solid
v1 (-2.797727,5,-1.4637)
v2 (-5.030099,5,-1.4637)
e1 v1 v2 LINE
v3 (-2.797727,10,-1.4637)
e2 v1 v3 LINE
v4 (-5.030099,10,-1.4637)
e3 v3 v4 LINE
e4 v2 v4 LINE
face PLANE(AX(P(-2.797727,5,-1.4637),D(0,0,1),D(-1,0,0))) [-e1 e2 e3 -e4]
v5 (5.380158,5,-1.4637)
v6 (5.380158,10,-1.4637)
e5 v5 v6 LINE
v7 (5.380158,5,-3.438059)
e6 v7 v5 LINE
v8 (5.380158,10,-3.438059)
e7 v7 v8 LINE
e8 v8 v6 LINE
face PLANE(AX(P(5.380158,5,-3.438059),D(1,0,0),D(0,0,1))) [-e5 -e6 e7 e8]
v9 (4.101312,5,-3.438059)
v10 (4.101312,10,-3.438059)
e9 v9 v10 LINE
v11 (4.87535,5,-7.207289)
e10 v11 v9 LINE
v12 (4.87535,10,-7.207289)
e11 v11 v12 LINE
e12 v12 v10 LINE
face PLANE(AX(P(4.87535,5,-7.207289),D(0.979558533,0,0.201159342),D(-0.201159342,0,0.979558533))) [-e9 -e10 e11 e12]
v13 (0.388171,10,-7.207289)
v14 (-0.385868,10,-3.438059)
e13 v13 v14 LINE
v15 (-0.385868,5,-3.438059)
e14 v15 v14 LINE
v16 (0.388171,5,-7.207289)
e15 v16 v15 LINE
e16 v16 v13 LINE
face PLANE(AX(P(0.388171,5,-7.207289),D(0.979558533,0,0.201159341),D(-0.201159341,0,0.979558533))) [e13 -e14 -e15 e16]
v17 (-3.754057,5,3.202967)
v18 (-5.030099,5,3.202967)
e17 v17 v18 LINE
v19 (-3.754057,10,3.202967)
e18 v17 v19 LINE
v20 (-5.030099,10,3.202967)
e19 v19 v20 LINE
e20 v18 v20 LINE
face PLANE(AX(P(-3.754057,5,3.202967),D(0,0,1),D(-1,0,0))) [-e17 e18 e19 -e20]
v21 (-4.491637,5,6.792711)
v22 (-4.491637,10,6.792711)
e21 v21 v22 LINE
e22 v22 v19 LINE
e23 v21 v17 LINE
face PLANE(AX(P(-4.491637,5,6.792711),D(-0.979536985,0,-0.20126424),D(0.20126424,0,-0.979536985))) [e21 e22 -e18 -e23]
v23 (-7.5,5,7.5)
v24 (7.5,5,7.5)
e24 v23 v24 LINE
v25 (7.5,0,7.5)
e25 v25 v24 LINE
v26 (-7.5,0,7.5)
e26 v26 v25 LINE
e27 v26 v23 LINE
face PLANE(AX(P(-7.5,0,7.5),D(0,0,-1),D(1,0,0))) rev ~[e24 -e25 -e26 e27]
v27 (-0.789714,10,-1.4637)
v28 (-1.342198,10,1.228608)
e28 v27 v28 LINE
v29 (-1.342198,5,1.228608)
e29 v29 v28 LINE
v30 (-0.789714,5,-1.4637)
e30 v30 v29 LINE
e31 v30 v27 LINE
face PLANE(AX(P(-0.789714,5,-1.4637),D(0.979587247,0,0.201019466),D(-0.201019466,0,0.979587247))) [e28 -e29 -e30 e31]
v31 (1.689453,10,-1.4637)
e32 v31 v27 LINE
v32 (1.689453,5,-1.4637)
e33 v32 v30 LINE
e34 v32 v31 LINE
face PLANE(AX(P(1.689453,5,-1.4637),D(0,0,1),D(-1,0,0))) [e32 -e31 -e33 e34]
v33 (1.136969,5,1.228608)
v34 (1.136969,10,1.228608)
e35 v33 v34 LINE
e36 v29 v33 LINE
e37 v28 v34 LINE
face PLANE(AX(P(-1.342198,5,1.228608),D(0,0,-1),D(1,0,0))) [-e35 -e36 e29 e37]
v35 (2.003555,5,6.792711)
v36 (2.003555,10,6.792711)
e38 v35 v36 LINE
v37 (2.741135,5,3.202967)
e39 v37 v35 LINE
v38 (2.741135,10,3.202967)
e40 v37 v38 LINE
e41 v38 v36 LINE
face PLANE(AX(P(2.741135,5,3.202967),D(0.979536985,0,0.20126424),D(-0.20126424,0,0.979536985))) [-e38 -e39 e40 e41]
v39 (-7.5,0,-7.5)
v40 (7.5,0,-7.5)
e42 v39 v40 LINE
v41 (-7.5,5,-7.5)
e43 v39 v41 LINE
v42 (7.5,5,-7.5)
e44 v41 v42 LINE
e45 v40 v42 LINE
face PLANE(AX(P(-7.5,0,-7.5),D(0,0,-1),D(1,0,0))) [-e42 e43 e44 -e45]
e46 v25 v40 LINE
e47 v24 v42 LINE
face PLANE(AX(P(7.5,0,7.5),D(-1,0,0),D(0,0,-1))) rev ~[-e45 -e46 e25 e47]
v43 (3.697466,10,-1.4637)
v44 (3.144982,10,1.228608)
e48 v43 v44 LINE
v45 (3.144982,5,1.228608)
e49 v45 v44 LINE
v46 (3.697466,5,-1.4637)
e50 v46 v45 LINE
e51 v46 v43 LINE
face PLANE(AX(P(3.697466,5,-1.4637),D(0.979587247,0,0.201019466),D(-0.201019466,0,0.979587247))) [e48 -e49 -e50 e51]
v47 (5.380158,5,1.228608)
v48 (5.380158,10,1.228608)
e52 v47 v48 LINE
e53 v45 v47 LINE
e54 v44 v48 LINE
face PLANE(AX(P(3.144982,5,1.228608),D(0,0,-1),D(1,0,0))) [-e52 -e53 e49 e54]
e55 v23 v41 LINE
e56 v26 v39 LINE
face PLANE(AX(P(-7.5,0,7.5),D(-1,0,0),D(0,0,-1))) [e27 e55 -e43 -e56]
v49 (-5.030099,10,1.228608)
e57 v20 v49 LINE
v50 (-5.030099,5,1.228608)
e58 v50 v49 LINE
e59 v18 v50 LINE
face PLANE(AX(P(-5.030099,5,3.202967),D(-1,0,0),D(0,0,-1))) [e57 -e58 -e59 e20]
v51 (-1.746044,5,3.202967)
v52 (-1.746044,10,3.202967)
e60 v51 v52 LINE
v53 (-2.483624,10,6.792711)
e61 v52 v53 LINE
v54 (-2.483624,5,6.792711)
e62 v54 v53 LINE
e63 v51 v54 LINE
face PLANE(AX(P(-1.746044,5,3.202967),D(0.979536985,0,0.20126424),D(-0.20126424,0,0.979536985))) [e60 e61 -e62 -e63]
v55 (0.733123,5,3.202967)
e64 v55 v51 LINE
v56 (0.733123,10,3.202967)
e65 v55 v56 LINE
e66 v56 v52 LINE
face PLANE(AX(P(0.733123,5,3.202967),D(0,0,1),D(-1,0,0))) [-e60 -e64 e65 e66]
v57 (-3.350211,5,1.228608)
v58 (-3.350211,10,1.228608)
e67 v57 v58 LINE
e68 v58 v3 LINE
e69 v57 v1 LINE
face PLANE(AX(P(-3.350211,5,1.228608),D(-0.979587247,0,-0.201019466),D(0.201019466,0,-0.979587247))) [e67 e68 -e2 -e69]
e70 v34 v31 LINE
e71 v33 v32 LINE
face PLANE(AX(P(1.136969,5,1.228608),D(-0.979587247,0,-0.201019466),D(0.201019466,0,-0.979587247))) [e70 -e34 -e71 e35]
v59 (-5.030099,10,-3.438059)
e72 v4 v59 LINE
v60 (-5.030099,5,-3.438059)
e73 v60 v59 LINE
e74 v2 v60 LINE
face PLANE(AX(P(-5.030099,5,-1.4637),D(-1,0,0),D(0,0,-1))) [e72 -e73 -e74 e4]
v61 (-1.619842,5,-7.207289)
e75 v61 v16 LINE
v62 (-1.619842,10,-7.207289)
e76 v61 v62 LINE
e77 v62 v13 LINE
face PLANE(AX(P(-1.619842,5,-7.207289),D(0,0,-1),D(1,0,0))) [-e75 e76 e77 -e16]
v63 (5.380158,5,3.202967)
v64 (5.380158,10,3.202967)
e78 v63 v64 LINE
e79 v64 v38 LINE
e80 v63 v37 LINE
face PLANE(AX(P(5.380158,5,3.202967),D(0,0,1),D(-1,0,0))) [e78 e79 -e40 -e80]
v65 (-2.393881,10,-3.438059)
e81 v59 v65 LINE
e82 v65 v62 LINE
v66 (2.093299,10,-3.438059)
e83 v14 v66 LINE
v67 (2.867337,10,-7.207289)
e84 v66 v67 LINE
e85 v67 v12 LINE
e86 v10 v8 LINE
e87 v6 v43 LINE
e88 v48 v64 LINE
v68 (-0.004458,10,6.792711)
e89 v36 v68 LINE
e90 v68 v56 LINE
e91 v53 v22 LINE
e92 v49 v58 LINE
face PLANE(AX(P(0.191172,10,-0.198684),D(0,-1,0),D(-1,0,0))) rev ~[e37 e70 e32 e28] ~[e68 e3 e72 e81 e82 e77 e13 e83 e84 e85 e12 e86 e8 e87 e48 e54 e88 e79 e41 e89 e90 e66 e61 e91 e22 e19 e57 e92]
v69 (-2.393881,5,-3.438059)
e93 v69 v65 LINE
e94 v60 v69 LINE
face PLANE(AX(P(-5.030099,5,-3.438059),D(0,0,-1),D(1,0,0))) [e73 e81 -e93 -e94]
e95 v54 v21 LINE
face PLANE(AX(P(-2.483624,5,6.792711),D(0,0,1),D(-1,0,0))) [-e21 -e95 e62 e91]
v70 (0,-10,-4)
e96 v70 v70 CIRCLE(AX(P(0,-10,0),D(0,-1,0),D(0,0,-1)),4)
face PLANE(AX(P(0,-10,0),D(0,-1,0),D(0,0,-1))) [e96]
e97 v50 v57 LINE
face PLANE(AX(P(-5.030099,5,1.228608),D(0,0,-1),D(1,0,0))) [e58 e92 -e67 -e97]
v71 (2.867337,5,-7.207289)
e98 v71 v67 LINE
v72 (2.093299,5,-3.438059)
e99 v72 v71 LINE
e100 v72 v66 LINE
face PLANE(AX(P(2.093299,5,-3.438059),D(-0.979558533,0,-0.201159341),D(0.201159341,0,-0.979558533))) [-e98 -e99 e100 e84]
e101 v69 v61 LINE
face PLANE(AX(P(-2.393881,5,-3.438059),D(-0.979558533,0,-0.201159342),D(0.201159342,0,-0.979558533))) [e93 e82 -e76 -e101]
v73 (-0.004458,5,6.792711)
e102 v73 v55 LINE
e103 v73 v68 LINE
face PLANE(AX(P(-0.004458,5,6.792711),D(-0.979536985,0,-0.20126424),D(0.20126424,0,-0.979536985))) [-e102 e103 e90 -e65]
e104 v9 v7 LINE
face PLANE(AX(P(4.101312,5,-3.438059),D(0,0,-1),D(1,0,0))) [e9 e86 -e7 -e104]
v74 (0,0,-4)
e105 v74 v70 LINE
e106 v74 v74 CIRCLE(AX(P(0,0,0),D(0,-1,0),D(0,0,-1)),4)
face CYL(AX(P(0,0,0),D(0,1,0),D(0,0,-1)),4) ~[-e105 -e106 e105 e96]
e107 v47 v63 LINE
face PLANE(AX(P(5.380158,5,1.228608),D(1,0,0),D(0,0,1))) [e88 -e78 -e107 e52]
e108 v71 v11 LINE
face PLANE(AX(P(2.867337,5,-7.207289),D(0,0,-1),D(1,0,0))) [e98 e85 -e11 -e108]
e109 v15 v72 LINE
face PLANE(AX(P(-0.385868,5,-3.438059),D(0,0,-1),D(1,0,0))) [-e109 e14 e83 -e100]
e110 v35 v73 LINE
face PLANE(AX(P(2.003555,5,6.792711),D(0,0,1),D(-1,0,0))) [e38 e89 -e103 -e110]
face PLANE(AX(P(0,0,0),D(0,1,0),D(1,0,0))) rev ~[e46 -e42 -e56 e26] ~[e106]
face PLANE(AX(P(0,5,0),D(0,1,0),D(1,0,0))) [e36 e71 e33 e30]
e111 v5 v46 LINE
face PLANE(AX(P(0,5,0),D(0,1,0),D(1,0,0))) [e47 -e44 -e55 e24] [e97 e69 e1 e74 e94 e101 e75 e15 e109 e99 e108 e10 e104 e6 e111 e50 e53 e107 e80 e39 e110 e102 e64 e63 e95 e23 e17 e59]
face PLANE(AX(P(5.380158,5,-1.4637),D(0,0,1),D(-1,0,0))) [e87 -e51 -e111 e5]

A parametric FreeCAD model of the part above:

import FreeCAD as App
import Part
import Sketcher
Q = App.Units.Quantity

doc = App.newDocument("Part")
body = doc.addObject("PartDesign::Body", "Body")

sketch1 = body.newObject("Sketcher::SketchObject", "Sketch")
sketch1.AttachmentSupport = (doc.getObject("XZ_Plane"), [""])
sketch1.MapMode = "FlatFace"
sketch1.addGeometry([
    Part.LineSegment(App.Vector(-8, -8, 0), App.Vector(-8, 8, 0)),
    Part.LineSegment(App.Vector(-8, 8, 0), App.Vector(8, 8, 0)),
    Part.LineSegment(App.Vector(8, 8, 0), App.Vector(8, -8, 0)),
    Part.LineSegment(App.Vector(8, -8, 0), App.Vector(-8, -8, 0)),
], False)
sketch1.addConstraint([
    Sketcher.Constraint("Coincident", 0, 2, 1, 1),
    Sketcher.Constraint("Coincident", 1, 2, 2, 1),
    Sketcher.Constraint("Coincident", 2, 2, 3, 1),
    Sketcher.Constraint("Coincident", 3, 2, 0, 1),
    Sketcher.Constraint("Vertical", 0),
    Sketcher.Constraint("Horizontal", 1),
    Sketcher.Constraint("Vertical", 2),
    Sketcher.Constraint("Horizontal", 3),
    Sketcher.Constraint("Symmetric", 0, 2, 2, 2, -1, 1),
    Sketcher.Constraint("Equal", 3, 0),
    Sketcher.Constraint("DistanceX", 1, 1, 1, 2, Q("15 mm")),
])
pad1 = body.newObject("PartDesign::Pad", "Pad")
pad1.Profile = sketch1
pad1.Length = 5
pad1.Reversed = True

sketch2 = body.newObject("Sketcher::SketchObject", "Sketch001")
sketch2.AttachmentSupport = (doc.getObject("XZ_Plane"), [""])
sketch2.MapMode = "FlatFace"
sketch2.AttachmentOffset = App.Placement(App.Vector(0, 0, -5), App.Rotation())
sketch2.addGeometry([
    Part.LineSegment(App.Vector(-5, 3.2, 0), App.Vector(-3.8, 3.2, 0)),
    Part.LineSegment(App.Vector(-3.8, 3.2, 0), App.Vector(-4.5, 6.8, 0)),
    Part.LineSegment(App.Vector(-4.5, 6.8, 0), App.Vector(-2.5, 6.8, 0)),
    Part.LineSegment(App.Vector(-2.5, 6.8, 0), App.Vector(-1.7, 3.2, 0)),
    Part.LineSegment(App.Vector(-1.7, 3.2, 0), App.Vector(0.7, 3.2, 0)),
    Part.LineSegment(App.Vector(0.7, 3.2, 0), App.Vector(0, 6.8, 0)),
    Part.LineSegment(App.Vector(0, 6.8, 0), App.Vector(2, 6.8, 0)),
    Part.LineSegment(App.Vector(2, 6.8, 0), App.Vector(2.7, 3.2, 0)),
    Part.LineSegment(App.Vector(2.7, 3.2, 0), App.Vector(5.4, 3.2, 0)),
    Part.LineSegment(App.Vector(5.4, 3.2, 0), App.Vector(5.4, 1.2, 0)),
    Part.LineSegment(App.Vector(5.4, 1.2, 0), App.Vector(3.1, 1.2, 0)),
    Part.LineSegment(App.Vector(3.1, 1.2, 0), App.Vector(3.7, -1.5, 0)),
    Part.LineSegment(App.Vector(3.7, -1.5, 0), App.Vector(5.4, -1.5, 0)),
    Part.LineSegment(App.Vector(5.4, -1.5, 0), App.Vector(5.4, -3.4, 0)),
    Part.LineSegment(App.Vector(5.4, -3.4, 0), App.Vector(4.1, -3.4, 0)),
    Part.LineSegment(App.Vector(4.1, -3.4, 0), App.Vector(4.9, -7.2, 0)),
    Part.LineSegment(App.Vector(4.9, -7.2, 0), App.Vector(2.9, -7.2, 0)),
    Part.LineSegment(App.Vector(2.9, -7.2, 0), App.Vector(2.1, -3.4, 0)),
    Part.LineSegment(App.Vector(2.1, -3.4, 0), App.Vector(-0.4, -3.4, 0)),
    Part.LineSegment(App.Vector(-0.4, -3.4, 0), App.Vector(0.4, -7.2, 0)),
    Part.LineSegment(App.Vector(0.4, -7.2, 0), App.Vector(-1.6, -7.2, 0)),
    Part.LineSegment(App.Vector(-1.6, -7.2, 0), App.Vector(-2.4, -3.4, 0)),
    Part.LineSegment(App.Vector(-2.4, -3.4, 0), App.Vector(-5, -3.4, 0)),
    Part.LineSegment(App.Vector(-5, -3.4, 0), App.Vector(-5, -1.5, 0)),
    Part.LineSegment(App.Vector(-5, -1.5, 0), App.Vector(-2.8, -1.5, 0)),
    Part.LineSegment(App.Vector(-2.8, -1.5, 0), App.Vector(-3.4, 1.2, 0)),
    Part.LineSegment(App.Vector(-3.4, 1.2, 0), App.Vector(-5, 1.2, 0)),
    Part.LineSegment(App.Vector(-5, 1.2, 0), App.Vector(-5, 3.2, 0)),
    Part.LineSegment(App.Vector(-0.8, -1.5, 0), App.Vector(1.7, -1.5, 0)),
    Part.LineSegment(App.Vector(1.7, -1.5, 0), App.Vector(1.1, 1.2, 0)),
    Part.LineSegment(App.Vector(1.1, 1.2, 0), App.Vector(-1.3, 1.2, 0)),
    Part.LineSegment(App.Vector(-1.3, 1.2, 0), App.Vector(-0.8, -1.5, 0)),
], False)
sketch2.addConstraint([
    Sketcher.Constraint("Coincident", 0, 2, 1, 1),
    Sketcher.Constraint("Coincident", 1, 2, 2, 1),
    Sketcher.Constraint("Coincident", 2, 2, 3, 1),
    Sketcher.Constraint("Coincident", 3, 2, 4, 1),
    Sketcher.Constraint("Coincident", 4, 2, 5, 1),
    Sketcher.Constraint("Coincident", 5, 2, 6, 1),
    Sketcher.Constraint("Coincident", 6, 2, 7, 1),
    Sketcher.Constraint("Coincident", 7, 2, 8, 1),
    Sketcher.Constraint("Coincident", 8, 2, 9, 1),
    Sketcher.Constraint("Coincident", 9, 2, 10, 1),
    Sketcher.Constraint("Coincident", 10, 2, 11, 1),
    Sketcher.Constraint("Coincident", 11, 2, 12, 1),
    Sketcher.Constraint("Coincident", 12, 2, 13, 1),
    Sketcher.Constraint("Coincident", 13, 2, 14, 1),
    Sketcher.Constraint("Coincident", 14, 2, 15, 1),
    Sketcher.Constraint("Coincident", 15, 2, 16, 1),
    Sketcher.Constraint("Coincident", 16, 2, 17, 1),
    Sketcher.Constraint("Coincident", 17, 2, 18, 1),
    Sketcher.Constraint("Coincident", 18, 2, 19, 1),
    Sketcher.Constraint("Coincident", 19, 2, 20, 1),
    Sketcher.Constraint("Coincident", 20, 2, 21, 1),
    Sketcher.Constraint("Coincident", 21, 2, 22, 1),
    Sketcher.Constraint("Coincident", 22, 2, 23, 1),
    Sketcher.Constraint("Coincident", 23, 2, 24, 1),
    Sketcher.Constraint("Coincident", 24, 2, 25, 1),
    Sketcher.Constraint("Coincident", 25, 2, 26, 1),
    Sketcher.Constraint("Coincident", 26, 2, 27, 1),
    Sketcher.Constraint("Coincident", 27, 2, 0, 1),
    Sketcher.Constraint("Coincident", 28, 2, 29, 1),
    Sketcher.Constraint("Coincident", 29, 2, 30, 1),
    Sketcher.Constraint("Coincident", 30, 2, 31, 1),
    Sketcher.Constraint("Coincident", 31, 2, 28, 1),
    Sketcher.Constraint("Horizontal", 0),
    Sketcher.Constraint("Horizontal", 2),
    Sketcher.Constraint("Horizontal", 4),
    Sketcher.Constraint("Horizontal", 6),
    Sketcher.Constraint("Horizontal", 8),
    Sketcher.Constraint("Vertical", 9),
    Sketcher.Constraint("Horizontal", 10),
    Sketcher.Constraint("Horizontal", 12),
    Sketcher.Constraint("Vertical", 13),
    Sketcher.Constraint("Horizontal", 14),
    Sketcher.Constraint("Horizontal", 16),
    Sketcher.Constraint("Horizontal", 18),
    Sketcher.Constraint("Horizontal", 20),
    Sketcher.Constraint("Horizontal", 22),
    Sketcher.Constraint("Vertical", 23),
    Sketcher.Constraint("Horizontal", 24),
    Sketcher.Constraint("Horizontal", 26),
    Sketcher.Constraint("Vertical", 27),
    Sketcher.Constraint("Horizontal", 28),
    Sketcher.Constraint("Horizontal", 30),
    Sketcher.Constraint("Parallel", 1, 3),
    Sketcher.Constraint("Parallel", 3, 5),
    Sketcher.Constraint("Parallel", 5, 7),
    Sketcher.Constraint("Parallel", 15, 17),
    Sketcher.Constraint("Parallel", 17, 19),
    Sketcher.Constraint("Parallel", 19, 21),
    Sketcher.Constraint("Parallel", 11, 25),
    Sketcher.Constraint("Parallel", 25, 29),
    Sketcher.Constraint("Parallel", 29, 31),
    Sketcher.Constraint("Horizontal", 0, 2, 3, 2),
    Sketcher.Constraint("Horizontal", 2, 2, 5, 2),
    Sketcher.Constraint("Horizontal", 4, 2, 7, 2),
    Sketcher.Constraint("Horizontal", 14, 2, 17, 2),
    Sketcher.Constraint("Horizontal", 16, 2, 19, 2),
    Sketcher.Constraint("Horizontal", 18, 2, 21, 2),
    Sketcher.Constraint("Horizontal", 12, 2, 23, 2),
    Sketcher.Constraint("Horizontal", 10, 2, 25, 2),
    Sketcher.Constraint("Horizontal", 24, 2, 28, 2),
    Sketcher.Constraint("Horizontal", 26, 2, 29, 2),
    Sketcher.Constraint("Vertical", 9, 2, 12, 2),
    Sketcher.Constraint("Vertical", 23, 2, 26, 2),
    Sketcher.Constraint("Equal", 2, 6),
    Sketcher.Constraint("Equal", 6, 16),
    Sketcher.Constraint("Equal", 4, 18),
    Sketcher.Constraint("Equal", 16, 20),
    Sketcher.Constraint("Equal", 18, 28),
    Sketcher.Constraint("Equal", 9, 13),
    Sketcher.Constraint("DistanceX", 0, 1, 0, 2, Q("1.276042 mm")),
    Sketcher.Constraint("DistanceX", 24, 1, 24, 2, Q("2.232372 mm")),
    Sketcher.Constraint("DistanceY", 9, 2, 9, 1, Q("1.974359 mm")),
    Sketcher.Constraint("DistanceY", 11, 2, -1, 1, Q("1.4637 mm")),
    Sketcher.Constraint("DistanceX", -1, 1, 17, 2, Q("2.093299 mm")),
    Sketcher.Constraint("DistanceX", 22, 2, -1, 1, Q("5.030099 mm")),
    Sketcher.Constraint("DistanceX", 0, 2, 5, 2, Q("3.749599 mm")),
    Sketcher.Constraint("DistanceX", 3, 2, 8, 2, Q("7.126202 mm")),
    Sketcher.Constraint("Distance", 11, Q("2.74841 mm")),
    Sketcher.Constraint("DistanceX", 2, 1, 2, 2, Q("2.008013 mm")),
    Sketcher.Constraint("DistanceX", 4, 1, 4, 2, Q("2.479167 mm")),
    Sketcher.Constraint("DistanceX", 10, 2, 10, 1, Q("2.235176 mm")),
    Sketcher.Constraint("DistanceX", 12, 1, 12, 2, Q("1.682692 mm")),
    Sketcher.Constraint("DistanceY", -1, 1, 1, 2, Q("6.792711 mm")),
    Sketcher.Constraint("DistanceX", -1, 1, 15, 2, Q("4.87535 mm")),
    Sketcher.Constraint("DistanceY", 15, 2, -1, 1, Q("7.207289 mm")),
    Sketcher.Constraint("DistanceX", -1, 1, 29, 2, Q("1.136969 mm")),
])
pad2 = body.newObject("PartDesign::Pad", "Pad001")
pad2.Profile = sketch2
pad2.Length = 5
pad2.Reversed = True

sketch3 = body.newObject("Sketcher::SketchObject", "Sketch002")
sketch3.AttachmentSupport = (doc.getObject("XZ_Plane"), [""])
sketch3.MapMode = "FlatFace"
sketch3.addGeometry(Part.Circle(App.Vector(0, 0, 0), App.Vector(0, 0, 1), 4), False)
sketch3.addConstraint([
    Sketcher.Constraint("Coincident", 0, 3, -1, 1),
    Sketcher.Constraint("Diameter", 0, Q("8 mm")),
])
pad3 = body.newObject("PartDesign::Pad", "Pad002")
pad3.Profile = sketch3
pad3.Length = 10

doc.recompute()
